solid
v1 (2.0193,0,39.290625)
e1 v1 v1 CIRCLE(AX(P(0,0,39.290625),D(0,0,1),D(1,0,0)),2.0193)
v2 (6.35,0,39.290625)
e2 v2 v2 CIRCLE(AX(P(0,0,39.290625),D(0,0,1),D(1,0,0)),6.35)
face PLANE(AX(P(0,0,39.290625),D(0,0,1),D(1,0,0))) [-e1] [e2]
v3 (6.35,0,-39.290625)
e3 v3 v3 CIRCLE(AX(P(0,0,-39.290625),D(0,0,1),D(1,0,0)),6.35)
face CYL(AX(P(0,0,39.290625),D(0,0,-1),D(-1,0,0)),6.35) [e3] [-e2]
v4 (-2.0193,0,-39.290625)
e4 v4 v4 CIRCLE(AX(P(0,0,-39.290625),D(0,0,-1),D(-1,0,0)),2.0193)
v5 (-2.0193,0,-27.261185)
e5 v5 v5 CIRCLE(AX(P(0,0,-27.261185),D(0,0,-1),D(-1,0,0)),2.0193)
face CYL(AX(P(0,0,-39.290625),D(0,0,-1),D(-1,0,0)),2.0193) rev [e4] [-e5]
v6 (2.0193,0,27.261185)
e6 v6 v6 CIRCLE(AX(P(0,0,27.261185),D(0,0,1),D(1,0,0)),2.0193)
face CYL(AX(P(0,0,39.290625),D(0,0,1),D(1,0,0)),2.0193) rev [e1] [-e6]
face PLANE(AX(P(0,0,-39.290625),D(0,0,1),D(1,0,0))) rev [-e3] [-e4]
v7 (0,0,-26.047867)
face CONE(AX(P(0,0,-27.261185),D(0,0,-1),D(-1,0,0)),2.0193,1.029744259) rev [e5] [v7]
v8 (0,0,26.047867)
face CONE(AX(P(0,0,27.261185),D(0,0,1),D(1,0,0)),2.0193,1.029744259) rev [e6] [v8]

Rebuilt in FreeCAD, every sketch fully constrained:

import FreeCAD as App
import Part
import Sketcher
from FreeCAD import Vector
Q = App.Units.Quantity

doc = App.newDocument("Part")
body = doc.addObject("PartDesign::Body", "Body")

# Sketch on XY plane
sketch1 = body.newObject("Sketcher::SketchObject", "Sketch")
sketch1.AttachmentSupport = (doc.getObject("XY_Plane"), [""])
sketch1.MapMode = "FlatFace"
sketch1.addGeometry(Part.Circle(Vector(0, 0, 0), Vector(0, 0, 1), 6), False)
sketch1.addConstraint([
    Sketcher.Constraint("Coincident", 0, 3, -1, 1),
    Sketcher.Constraint("Diameter", 0, Q("0.5 in")),
])
pad1 = body.newObject("PartDesign::Pad", "Pad")
pad1.Profile = sketch1
pad1.Length = Q("3.09375 in")
pad1.Midplane = True

# Sketch on XY plane
sketch2 = body.newObject("Sketcher::SketchObject", "Sketch001")
sketch2.AttachmentSupport = (doc.getObject("XY_Plane"), [""])
sketch2.MapMode = "FlatFace"
sketch2.AttachmentOffset = App.Placement(Vector(0, 0, -1.546875 * 25.4), App.Rotation())
sketch2.addGeometry(Part.Circle(Vector(0, 0, 0), Vector(0, 0, 1), 2), False)
sketch2.addConstraint([
    Sketcher.Constraint("Coincident", 0, 3, -1, 1),
    Sketcher.Constraint("Diameter", 0, Q("0.159 in")),
])
doc.recompute()
hole = body.newObject("PartDesign::Hole", "Hole")
hole.Profile = sketch2
hole.ThreadType = "None"
hole.Diameter = Q("0.159 in")
hole.DepthType = "Dimension"
hole.Depth = Q("0.4736 in")
hole.DrillPoint = "Angled"
hole.DrillPointAngle = 118
hole.Reversed = True

# Sketch on XY plane
sketch3 = body.newObject("Sketcher::SketchObject", "Sketch002")
sketch3.AttachmentSupport = (doc.getObject("XY_Plane"), [""])
sketch3.MapMode = "FlatFace"
sketch3.AttachmentOffset = App.Placement(Vector(0, 0, 1.546875 * 25.4), App.Rotation())
sketch3.addGeometry(Part.Circle(Vector(0, 0, 0), Vector(0, 0, 1), 2), False)
sketch3.addConstraint([
    Sketcher.Constraint("Coincident", 0, 3, -1, 1),
    Sketcher.Constraint("Diameter", 0, Q("0.159 in")),
])
doc.recompute()
hole2 = body.newObject("PartDesign::Hole", "Hole001")
hole2.Profile = sketch3
hole2.ThreadType = "None"
hole2.Diameter = Q("0.159 in")
hole2.DepthType = "Dimension"
hole2.Depth = Q("0.4736 in")
hole2.DrillPoint = "Angled"
hole2.DrillPointAngle = 118

doc.recompute()
